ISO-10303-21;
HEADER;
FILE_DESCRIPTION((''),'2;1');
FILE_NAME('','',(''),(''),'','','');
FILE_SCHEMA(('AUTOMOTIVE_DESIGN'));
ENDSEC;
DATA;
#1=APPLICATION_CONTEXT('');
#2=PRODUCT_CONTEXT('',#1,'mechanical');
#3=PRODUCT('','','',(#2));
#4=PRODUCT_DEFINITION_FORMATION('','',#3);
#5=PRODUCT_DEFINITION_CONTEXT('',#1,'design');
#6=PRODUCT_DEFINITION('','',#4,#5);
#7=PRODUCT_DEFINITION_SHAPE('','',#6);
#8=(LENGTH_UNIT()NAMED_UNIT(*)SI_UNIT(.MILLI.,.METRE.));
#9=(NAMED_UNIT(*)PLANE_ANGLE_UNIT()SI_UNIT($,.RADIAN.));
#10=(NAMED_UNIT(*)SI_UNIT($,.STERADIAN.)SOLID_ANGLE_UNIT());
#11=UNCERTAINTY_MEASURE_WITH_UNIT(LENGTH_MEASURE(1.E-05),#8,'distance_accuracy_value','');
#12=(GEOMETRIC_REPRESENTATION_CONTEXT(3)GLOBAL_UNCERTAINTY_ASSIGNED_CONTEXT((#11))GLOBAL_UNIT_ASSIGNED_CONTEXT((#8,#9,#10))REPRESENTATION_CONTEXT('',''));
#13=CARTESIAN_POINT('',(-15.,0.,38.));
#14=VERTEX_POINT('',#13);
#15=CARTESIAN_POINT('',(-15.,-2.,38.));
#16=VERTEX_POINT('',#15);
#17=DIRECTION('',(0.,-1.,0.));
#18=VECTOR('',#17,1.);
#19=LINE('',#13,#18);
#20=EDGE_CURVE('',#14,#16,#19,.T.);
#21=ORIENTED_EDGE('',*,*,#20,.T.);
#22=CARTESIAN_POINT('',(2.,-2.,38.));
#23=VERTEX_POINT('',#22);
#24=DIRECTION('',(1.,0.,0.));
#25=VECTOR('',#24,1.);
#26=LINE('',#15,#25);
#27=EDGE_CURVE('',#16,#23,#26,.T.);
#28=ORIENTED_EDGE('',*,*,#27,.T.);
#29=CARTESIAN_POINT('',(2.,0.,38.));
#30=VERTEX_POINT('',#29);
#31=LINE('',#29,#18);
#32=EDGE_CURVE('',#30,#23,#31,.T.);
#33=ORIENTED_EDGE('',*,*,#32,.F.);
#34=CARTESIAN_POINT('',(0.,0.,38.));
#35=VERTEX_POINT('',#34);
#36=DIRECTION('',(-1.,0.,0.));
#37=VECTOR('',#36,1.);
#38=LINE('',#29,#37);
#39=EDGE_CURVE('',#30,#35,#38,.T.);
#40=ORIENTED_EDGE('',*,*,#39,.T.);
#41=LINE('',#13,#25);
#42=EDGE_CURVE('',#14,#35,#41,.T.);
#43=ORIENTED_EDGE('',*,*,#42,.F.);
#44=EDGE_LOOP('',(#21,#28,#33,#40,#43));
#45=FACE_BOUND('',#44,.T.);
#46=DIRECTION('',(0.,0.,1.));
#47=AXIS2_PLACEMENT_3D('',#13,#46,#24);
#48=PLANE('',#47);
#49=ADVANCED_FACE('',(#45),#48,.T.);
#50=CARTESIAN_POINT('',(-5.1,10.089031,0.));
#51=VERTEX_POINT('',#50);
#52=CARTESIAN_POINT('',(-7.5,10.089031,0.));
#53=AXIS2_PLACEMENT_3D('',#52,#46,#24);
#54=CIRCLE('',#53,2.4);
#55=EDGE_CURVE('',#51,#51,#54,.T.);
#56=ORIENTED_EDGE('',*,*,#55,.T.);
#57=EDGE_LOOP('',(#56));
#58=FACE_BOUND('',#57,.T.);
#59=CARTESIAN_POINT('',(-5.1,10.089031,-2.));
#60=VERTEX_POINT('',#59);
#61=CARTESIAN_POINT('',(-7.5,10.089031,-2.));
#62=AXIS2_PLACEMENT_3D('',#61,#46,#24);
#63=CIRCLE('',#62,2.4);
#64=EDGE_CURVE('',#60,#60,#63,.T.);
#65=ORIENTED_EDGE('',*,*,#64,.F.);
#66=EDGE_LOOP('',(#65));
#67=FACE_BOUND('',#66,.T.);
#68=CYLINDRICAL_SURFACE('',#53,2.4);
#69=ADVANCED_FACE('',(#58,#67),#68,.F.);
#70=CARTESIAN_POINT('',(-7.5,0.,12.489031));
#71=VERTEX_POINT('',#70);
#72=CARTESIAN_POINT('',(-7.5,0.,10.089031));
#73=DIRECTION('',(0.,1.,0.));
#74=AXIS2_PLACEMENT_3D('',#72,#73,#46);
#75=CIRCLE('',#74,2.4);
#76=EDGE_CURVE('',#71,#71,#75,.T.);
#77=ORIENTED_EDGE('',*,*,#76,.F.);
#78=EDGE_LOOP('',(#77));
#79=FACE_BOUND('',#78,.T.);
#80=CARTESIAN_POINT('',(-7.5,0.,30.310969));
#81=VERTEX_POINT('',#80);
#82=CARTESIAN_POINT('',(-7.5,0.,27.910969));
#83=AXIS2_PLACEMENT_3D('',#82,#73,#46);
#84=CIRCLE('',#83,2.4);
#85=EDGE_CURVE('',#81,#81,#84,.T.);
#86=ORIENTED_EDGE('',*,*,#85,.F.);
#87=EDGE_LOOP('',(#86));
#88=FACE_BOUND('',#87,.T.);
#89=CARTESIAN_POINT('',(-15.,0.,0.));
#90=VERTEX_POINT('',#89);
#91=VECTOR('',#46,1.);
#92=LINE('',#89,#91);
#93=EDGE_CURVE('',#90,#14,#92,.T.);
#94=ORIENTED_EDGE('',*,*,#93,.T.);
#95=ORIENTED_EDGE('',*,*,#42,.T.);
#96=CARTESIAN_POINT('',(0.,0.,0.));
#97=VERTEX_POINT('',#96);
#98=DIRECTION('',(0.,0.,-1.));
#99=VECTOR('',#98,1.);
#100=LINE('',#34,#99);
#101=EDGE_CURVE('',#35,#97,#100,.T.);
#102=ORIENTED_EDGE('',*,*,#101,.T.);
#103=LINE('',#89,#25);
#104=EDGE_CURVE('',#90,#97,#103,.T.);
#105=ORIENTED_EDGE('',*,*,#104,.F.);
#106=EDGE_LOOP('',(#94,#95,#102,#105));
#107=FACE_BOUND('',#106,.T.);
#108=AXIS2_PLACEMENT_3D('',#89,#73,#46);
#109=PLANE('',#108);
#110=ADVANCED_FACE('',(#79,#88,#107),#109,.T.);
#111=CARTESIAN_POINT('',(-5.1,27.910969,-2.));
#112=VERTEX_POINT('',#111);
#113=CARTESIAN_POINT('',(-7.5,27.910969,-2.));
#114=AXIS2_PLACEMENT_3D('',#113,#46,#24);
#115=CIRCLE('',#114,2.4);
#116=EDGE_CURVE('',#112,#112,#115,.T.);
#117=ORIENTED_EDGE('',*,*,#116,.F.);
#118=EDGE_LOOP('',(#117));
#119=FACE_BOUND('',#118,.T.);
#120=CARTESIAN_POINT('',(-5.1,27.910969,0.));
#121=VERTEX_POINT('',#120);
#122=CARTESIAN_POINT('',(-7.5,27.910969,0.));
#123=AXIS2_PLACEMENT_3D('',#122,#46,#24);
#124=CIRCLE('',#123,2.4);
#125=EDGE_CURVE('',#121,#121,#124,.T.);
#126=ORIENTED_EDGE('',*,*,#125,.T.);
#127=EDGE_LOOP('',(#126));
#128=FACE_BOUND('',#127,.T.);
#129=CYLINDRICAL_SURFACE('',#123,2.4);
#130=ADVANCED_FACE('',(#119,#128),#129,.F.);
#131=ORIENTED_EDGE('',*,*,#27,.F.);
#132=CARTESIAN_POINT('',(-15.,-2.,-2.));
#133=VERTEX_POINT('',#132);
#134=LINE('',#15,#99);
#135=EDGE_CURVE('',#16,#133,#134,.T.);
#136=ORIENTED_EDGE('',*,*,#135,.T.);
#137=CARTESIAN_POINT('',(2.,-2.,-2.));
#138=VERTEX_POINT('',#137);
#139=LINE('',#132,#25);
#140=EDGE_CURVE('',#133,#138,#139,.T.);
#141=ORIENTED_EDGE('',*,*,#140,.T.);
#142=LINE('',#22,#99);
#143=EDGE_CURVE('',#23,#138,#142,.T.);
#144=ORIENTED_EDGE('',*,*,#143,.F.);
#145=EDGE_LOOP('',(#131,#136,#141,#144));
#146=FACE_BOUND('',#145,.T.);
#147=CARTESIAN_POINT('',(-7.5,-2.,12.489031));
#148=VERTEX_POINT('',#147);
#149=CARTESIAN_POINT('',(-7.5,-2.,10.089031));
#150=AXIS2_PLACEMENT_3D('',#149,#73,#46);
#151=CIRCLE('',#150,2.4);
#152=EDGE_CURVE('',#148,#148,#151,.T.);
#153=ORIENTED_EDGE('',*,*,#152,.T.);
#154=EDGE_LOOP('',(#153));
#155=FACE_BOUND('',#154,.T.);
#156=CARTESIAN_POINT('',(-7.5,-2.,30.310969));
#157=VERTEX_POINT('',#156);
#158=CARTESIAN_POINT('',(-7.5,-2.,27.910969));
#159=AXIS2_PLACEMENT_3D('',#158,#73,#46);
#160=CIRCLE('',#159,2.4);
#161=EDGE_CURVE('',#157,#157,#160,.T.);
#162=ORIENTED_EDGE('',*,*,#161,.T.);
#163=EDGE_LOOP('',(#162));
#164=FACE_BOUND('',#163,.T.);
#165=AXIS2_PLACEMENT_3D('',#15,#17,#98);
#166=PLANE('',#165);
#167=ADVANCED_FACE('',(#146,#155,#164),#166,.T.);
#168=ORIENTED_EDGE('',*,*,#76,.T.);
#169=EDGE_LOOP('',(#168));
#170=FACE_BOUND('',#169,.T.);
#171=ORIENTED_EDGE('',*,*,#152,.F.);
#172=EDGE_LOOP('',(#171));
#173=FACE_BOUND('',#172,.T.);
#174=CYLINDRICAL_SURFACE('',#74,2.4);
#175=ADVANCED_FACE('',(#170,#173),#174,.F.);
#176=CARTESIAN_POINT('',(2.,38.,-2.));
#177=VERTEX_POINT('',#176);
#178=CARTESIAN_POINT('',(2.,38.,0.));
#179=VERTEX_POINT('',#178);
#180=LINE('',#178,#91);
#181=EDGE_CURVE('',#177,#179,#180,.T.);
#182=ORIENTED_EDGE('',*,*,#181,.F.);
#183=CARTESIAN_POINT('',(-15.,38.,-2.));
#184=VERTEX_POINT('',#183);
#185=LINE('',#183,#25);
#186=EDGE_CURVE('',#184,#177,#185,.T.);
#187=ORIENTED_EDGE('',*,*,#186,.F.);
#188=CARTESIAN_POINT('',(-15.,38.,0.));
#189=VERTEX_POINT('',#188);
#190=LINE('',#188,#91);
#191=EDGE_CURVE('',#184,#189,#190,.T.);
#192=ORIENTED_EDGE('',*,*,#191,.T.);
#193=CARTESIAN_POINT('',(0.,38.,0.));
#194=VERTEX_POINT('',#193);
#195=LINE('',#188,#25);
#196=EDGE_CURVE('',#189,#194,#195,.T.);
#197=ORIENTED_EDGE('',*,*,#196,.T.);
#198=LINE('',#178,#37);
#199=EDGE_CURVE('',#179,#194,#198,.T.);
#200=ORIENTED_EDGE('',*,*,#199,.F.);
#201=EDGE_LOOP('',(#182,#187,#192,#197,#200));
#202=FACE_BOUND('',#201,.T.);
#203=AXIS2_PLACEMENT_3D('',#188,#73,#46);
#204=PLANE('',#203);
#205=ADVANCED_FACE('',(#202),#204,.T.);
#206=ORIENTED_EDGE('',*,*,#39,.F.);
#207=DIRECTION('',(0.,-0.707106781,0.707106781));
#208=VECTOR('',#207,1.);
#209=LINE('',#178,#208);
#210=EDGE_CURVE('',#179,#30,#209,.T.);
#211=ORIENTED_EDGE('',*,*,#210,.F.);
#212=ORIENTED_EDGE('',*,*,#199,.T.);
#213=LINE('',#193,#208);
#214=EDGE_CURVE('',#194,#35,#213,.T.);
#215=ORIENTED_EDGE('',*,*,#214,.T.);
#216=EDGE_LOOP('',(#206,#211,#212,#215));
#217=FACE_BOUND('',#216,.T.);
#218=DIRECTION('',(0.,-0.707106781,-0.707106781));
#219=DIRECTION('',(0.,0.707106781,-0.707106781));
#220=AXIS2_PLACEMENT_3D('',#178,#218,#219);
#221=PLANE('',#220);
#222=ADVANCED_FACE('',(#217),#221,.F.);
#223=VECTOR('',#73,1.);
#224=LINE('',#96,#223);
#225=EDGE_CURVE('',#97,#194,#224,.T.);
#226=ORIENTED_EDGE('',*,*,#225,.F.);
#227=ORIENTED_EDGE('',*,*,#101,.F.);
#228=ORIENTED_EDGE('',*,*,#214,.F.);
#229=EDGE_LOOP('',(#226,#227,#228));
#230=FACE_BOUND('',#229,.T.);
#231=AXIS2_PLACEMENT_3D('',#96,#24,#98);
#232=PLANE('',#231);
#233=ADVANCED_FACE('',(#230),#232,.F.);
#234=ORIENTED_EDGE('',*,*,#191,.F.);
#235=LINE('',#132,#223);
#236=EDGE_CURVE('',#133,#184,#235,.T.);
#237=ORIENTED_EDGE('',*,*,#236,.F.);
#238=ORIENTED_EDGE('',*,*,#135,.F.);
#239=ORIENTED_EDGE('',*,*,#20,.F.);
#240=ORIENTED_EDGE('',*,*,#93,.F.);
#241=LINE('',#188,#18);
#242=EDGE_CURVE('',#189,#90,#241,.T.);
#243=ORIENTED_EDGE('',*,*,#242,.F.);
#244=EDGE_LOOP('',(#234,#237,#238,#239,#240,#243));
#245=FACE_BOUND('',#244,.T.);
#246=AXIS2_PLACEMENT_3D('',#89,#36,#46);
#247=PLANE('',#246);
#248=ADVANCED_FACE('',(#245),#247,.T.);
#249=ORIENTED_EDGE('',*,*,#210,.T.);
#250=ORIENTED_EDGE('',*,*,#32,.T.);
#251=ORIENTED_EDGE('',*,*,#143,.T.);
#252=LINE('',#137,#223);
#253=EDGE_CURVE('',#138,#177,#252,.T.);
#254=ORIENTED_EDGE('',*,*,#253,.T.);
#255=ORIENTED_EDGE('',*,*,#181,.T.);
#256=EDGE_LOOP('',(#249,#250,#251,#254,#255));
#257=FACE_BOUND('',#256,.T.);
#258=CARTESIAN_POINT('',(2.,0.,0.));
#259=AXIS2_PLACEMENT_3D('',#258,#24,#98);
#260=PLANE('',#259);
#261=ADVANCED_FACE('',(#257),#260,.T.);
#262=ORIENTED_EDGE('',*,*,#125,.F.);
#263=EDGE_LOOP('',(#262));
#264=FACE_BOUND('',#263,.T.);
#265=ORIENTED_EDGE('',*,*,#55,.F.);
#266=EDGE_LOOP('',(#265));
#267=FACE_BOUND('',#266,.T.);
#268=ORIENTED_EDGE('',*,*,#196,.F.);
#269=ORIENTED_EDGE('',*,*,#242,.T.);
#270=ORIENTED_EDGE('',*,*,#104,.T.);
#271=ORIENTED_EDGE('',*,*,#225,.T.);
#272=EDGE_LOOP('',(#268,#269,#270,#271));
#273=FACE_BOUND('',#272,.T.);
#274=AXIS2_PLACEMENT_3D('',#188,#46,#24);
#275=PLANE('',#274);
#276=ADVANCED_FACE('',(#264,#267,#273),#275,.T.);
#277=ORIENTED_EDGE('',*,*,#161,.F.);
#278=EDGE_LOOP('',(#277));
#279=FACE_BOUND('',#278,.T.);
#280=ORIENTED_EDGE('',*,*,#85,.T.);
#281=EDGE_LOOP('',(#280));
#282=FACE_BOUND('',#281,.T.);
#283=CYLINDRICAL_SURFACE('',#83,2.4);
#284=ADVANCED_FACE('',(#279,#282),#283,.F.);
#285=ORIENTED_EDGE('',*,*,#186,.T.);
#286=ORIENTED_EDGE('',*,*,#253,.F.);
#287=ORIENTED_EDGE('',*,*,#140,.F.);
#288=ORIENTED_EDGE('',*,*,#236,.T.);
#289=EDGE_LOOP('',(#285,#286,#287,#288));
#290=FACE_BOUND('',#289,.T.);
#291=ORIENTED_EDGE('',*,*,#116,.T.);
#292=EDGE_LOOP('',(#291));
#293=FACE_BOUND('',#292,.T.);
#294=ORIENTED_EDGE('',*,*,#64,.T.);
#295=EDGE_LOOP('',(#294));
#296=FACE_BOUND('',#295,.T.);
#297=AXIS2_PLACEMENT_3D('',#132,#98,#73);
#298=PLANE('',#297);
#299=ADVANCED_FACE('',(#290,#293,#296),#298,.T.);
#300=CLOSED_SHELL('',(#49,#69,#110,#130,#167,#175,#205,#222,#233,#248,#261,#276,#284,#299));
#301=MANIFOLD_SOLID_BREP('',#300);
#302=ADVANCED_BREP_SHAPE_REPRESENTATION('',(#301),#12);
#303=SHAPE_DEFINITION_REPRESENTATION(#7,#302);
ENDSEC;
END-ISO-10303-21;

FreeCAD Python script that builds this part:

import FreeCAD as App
import Part
import Sketcher

V = App.Vector

doc = App.newDocument("Part")
body = doc.addObject("PartDesign::Body", "Body")

# Sketch on YZ plane
sketch1 = body.newObject("Sketcher::SketchObject", "Sketch")
sketch1.AttachmentSupport = (doc.getObject("YZ_Plane"), [""])
sketch1.MapMode = "FlatFace"
sketch1.addGeometry(Part.LineSegment(V(0, 38, 0), V(0, 0, 0)), False)
sketch1.addGeometry(Part.LineSegment(V(0, 0, 0), V(38, 0, 0)), False)
sketch1.addGeometry(Part.LineSegment(V(38, 0, 0), V(0, 38, 0)), False)
sketch1.addConstraint(Sketcher.Constraint("Coincident", 0, 2, 1, 1))
sketch1.addConstraint(Sketcher.Constraint("Coincident", 1, 2, 2, 1))
sketch1.addConstraint(Sketcher.Constraint("Coincident", 2, 2, 0, 1))
sketch1.addConstraint(Sketcher.Constraint("Vertical", 0))
sketch1.addConstraint(Sketcher.Constraint("Horizontal", 1))
sketch1.addConstraint(Sketcher.Constraint("Coincident", 0, 2, -1, 1))
sketch1.addConstraint(Sketcher.Constraint("Equal", 1, 0))
sketch1.addConstraint(Sketcher.Constraint("DistanceX", 1, 1, 1, 2, 38.0))
pad1 = body.newObject("PartDesign::Pad", "Pad")
pad1.Profile = sketch1
pad1.Length = 2

# Sketch on YZ plane
sketch2 = body.newObject("Sketcher::SketchObject", "Sketch001")
sketch2.AttachmentSupport = (doc.getObject("YZ_Plane"), [""])
sketch2.MapMode = "FlatFace"
sketch2.AttachmentOffset = App.Placement(V(0, 0, 2), App.Rotation())
sketch2.addGeometry(Part.LineSegment(V(38, -2, 0), V(38, 0, 0)), False)
sketch2.addGeometry(Part.LineSegment(V(38, 0, 0), V(0, 0, 0)), False)
sketch2.addGeometry(Part.LineSegment(V(0, 0, 0), V(0, 38, 0)), False)
sketch2.addGeometry(Part.LineSegment(V(0, 38, 0), V(-2, 38, 0)), False)
sketch2.addGeometry(Part.LineSegment(V(-2, 38, 0), V(-2, -2, 0)), False)
sketch2.addGeometry(Part.LineSegment(V(-2, -2, 0), V(38, -2, 0)), False)
sketch2.addConstraint(Sketcher.Constraint("Coincident", 0, 2, 1, 1))
sketch2.addConstraint(Sketcher.Constraint("Coincident", 1, 2, 2, 1))
sketch2.addConstraint(Sketcher.Constraint("Coincident", 2, 2, 3, 1))
sketch2.addConstraint(Sketcher.Constraint("Coincident", 3, 2, 4, 1))
sketch2.addConstraint(Sketcher.Constraint("Coincident", 4, 2, 5, 1))
sketch2.addConstraint(Sketcher.Constraint("Coincident", 5, 2, 0, 1))
sketch2.addConstraint(Sketcher.Constraint("Vertical", 0))
sketch2.addConstraint(Sketcher.Constraint("Horizontal", 1))
sketch2.addConstraint(Sketcher.Constraint("Vertical", 2))
sketch2.addConstraint(Sketcher.Constraint("Horizontal", 3))
sketch2.addConstraint(Sketcher.Constraint("Vertical", 4))
sketch2.addConstraint(Sketcher.Constraint("Horizontal", 5))
sketch2.addConstraint(Sketcher.Constraint("Coincident", 1, 2, -1, 1))
sketch2.addConstraint(Sketcher.Constraint("Equal", 3, 0))
sketch2.addConstraint(Sketcher.Constraint("Equal", 1, 2))
sketch2.addConstraint(Sketcher.Constraint("DistanceX", 1, 2, 1, 1, 38.0))
sketch2.addConstraint(Sketcher.Constraint("DistanceX", 3, 2, 3, 1, 2.0))
pad2 = body.newObject("PartDesign::Pad", "Pad001")
pad2.Profile = sketch2
pad2.Length = 17
pad2.Reversed = True

# Sketch on XZ plane
sketch3 = body.newObject("Sketcher::SketchObject", "Sketch002")
sketch3.AttachmentSupport = (doc.getObject("XZ_Plane"), [""])
sketch3.MapMode = "FlatFace"
sketch3.addGeometry(Part.Circle(V(-7.5, 10.1, 0), V(0, 0, 1), 2.1), False)
sketch3.addGeometry(Part.Circle(V(-7.5, 27.9, 0), V(0, 0, 1), 2.1), False)
sketch3.addConstraint(Sketcher.Constraint("Equal", 0, 1))
sketch3.addConstraint(Sketcher.Constraint("Vertical", 0, 3, 1, 3))
sketch3.addConstraint(Sketcher.Constraint("Diameter", 0, 4.2))
sketch3.addConstraint(Sketcher.Constraint("DistanceX", 0, 3, -1, 1, 7.5))
sketch3.addConstraint(Sketcher.Constraint("DistanceY", -1, 1, 0, 3, 10.089031))
sketch3.addConstraint(Sketcher.Constraint("DistanceY", -1, 1, 1, 3, 27.910969))
groove = body.newObject("PartDesign::Groove", "Groove")
groove.Profile = sketch3
groove.ReferenceAxis = (sketch3, ["H_Axis"])
groove.Angle = 360

# Sketch on XY plane
sketch4 = body.newObject("Sketcher::SketchObject", "Sketch003")
sketch4.AttachmentSupport = (doc.getObject("XY_Plane"), [""])
sketch4.MapMode = "FlatFace"
sketch4.addGeometry(Part.Circle(V(-7.5, 27.9, 0), V(0, 0, 1), 2.4), False)
sketch4.addGeometry(Part.Circle(V(-7.5, 10.1, 0), V(0, 0, 1), 2.4), False)
sketch4.addConstraint(Sketcher.Constraint("Equal", 0, 1))
sketch4.addConstraint(Sketcher.Constraint("Vertical", 0, 3, 1, 3))
sketch4.addConstraint(Sketcher.Constraint("Diameter", 0, 4.8))
sketch4.addConstraint(Sketcher.Constraint("DistanceX", 0, 3, -1, 1, 7.5))
sketch4.addConstraint(Sketcher.Constraint("DistanceY", -1, 1, 0, 3, 27.910969))
sketch4.addConstraint(Sketcher.Constraint("DistanceY", -1, 1, 1, 3, 10.089031))
doc.recompute()
hole = body.newObject("PartDesign::Hole", "Hole")
hole.Profile = sketch4
hole.ThreadType = "None"
hole.Diameter = 4.8
hole.DepthType = "Dimension"
hole.Depth = 2
hole.DrillPoint = "Flat"

# Sketch on XZ plane
sketch5 = body.newObject("Sketcher::SketchObject", "Sketch004")
sketch5.AttachmentSupport = (doc.getObject("XZ_Plane"), [""])
sketch5.MapMode = "FlatFace"
sketch5.addGeometry(Part.Circle(V(-7.5, 10.1, 0), V(0, 0, 1), 2.4), False)
sketch5.addGeometry(Part.Circle(V(-7.5, 27.9, 0), V(0, 0, 1), 2.4), False)
sketch5.addConstraint(Sketcher.Constraint("Equal", 0, 1))
sketch5.addConstraint(Sketcher.Constraint("Vertical", 0, 3, 1, 3))
sketch5.addConstraint(Sketcher.Constraint("Diameter", 0, 4.8))
sketch5.addConstraint(Sketcher.Constraint("DistanceX", 0, 3, -1, 1, 7.5))
sketch5.addConstraint(Sketcher.Constraint("DistanceY", -1, 1, 0, 3, 10.089031))
sketch5.addConstraint(Sketcher.Constraint("DistanceY", -1, 1, 1, 3, 27.910969))
doc.recompute()
hole2 = body.newObject("PartDesign::Hole", "Hole001")
hole2.Profile = sketch5
hole2.ThreadType = "None"
hole2.Diameter = 4.8
hole2.DepthType = "Dimension"
hole2.Depth = 2
hole2.DrillPoint = "Flat"
hole2.Reversed = True

doc.recompute()
